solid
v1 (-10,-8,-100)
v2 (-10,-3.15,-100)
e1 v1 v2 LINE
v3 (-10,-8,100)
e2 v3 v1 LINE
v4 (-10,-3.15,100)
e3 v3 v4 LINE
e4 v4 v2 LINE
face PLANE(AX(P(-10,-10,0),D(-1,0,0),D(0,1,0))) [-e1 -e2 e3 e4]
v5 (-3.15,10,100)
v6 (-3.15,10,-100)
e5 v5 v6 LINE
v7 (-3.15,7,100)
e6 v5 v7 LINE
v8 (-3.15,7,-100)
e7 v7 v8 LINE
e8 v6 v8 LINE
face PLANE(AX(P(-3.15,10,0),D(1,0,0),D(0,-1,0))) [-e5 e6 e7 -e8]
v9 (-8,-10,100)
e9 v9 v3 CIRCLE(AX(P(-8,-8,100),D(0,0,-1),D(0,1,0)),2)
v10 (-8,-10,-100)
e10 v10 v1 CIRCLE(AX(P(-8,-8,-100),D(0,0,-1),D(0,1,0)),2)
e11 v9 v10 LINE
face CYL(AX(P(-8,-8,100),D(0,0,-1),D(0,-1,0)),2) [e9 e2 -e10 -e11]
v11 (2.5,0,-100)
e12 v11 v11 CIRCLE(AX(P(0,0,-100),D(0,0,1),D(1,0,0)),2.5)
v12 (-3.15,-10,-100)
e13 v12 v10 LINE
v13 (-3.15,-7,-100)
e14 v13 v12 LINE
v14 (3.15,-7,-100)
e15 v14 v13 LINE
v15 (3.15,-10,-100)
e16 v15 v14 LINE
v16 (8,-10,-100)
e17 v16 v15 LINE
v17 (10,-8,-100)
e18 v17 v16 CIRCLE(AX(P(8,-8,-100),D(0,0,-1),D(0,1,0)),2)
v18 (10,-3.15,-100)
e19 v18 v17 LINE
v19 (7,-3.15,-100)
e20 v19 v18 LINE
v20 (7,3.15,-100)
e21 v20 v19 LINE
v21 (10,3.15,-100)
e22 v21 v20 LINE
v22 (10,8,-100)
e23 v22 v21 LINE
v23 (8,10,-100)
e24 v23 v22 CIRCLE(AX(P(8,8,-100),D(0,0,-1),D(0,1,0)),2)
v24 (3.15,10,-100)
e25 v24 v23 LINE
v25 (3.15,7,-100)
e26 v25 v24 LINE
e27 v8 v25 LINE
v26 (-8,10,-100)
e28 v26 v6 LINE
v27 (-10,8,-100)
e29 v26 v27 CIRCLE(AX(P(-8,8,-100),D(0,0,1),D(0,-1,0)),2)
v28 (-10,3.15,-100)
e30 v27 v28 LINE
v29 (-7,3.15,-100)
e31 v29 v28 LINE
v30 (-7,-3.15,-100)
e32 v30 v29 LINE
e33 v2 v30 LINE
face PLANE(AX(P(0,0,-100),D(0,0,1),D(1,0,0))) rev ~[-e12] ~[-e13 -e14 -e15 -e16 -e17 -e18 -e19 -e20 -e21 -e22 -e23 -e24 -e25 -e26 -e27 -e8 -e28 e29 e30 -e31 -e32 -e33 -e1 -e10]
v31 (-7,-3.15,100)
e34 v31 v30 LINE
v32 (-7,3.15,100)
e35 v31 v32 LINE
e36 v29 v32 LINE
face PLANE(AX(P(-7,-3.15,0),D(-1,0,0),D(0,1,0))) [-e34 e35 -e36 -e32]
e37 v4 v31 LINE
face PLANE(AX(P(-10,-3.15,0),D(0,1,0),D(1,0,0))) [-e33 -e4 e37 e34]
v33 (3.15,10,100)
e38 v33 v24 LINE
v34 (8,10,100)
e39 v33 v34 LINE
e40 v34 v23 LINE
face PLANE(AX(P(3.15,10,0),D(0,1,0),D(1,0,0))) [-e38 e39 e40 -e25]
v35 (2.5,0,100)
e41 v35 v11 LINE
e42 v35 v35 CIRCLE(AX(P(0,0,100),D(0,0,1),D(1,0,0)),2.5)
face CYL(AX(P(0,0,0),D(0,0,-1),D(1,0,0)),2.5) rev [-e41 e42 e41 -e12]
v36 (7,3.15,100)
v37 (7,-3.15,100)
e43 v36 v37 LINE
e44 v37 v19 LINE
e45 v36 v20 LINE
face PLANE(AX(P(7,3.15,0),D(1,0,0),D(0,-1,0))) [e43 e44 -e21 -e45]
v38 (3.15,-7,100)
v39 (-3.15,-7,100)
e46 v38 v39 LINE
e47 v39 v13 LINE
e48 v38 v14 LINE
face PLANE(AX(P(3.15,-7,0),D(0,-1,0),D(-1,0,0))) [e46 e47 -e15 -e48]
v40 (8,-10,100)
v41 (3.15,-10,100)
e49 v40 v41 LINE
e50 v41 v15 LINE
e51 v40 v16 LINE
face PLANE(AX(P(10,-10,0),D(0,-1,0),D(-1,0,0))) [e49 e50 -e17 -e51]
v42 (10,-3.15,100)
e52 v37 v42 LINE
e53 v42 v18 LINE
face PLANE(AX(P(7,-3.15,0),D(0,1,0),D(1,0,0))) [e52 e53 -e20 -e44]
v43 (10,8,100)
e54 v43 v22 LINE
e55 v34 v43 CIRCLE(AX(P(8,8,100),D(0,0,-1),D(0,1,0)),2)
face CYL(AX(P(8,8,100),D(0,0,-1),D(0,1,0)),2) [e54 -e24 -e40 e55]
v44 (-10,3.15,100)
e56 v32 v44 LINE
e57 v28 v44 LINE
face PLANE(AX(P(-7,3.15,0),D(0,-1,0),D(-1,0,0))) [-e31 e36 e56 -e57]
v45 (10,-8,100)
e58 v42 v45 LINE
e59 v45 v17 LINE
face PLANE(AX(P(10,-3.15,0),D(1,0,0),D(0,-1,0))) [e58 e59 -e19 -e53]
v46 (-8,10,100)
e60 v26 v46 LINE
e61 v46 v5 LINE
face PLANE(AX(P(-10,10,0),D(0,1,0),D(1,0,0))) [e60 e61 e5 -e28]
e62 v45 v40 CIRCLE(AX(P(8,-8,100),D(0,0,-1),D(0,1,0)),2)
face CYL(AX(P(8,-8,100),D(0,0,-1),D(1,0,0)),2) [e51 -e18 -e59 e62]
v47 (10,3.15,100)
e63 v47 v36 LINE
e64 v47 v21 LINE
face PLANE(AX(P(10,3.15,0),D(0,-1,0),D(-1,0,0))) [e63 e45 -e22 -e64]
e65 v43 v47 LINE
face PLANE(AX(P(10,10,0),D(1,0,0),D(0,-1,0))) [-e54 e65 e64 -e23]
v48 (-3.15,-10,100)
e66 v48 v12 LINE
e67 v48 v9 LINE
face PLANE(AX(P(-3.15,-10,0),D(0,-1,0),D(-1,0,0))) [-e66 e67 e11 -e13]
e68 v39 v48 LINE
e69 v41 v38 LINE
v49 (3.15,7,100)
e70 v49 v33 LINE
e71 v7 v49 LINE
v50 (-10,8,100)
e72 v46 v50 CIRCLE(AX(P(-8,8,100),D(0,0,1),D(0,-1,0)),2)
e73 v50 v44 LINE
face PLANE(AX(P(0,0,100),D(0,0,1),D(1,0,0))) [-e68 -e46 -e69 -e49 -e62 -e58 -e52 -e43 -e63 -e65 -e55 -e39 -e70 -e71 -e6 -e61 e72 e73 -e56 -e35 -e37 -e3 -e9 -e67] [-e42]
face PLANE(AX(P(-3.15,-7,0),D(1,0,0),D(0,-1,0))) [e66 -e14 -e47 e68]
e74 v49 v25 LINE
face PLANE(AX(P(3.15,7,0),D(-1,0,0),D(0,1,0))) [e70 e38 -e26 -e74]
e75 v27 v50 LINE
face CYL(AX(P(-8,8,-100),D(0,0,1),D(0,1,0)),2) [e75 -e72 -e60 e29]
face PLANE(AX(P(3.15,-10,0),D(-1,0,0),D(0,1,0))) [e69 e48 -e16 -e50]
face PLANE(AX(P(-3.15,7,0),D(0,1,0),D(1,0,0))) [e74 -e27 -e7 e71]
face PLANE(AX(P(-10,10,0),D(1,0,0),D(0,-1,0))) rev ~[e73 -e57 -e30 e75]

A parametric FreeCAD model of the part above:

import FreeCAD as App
import Part
import Sketcher
Q = App.Units.Quantity


def edges_at(feature, points):
    """Names of the edges that pass closest to the given points."""
    edges = feature.Shape.Edges
    near = lambda p: min(range(len(edges)), key=lambda i: edges[i].distToShape(Part.Vertex(*p))[0])
    return sorted({f"Edge{near(p) + 1}" for p in points})


def add_polygon(sketch, points):
    """Adds a closed chain of lines whose ends are joined by coincident constraints."""
    first, n = sketch.GeometryCount, len(points)
    for a, b in zip(points, points[1:] + points[:1]):
        sketch.addGeometry(Part.LineSegment(App.Vector(*a, 0), App.Vector(*b, 0)), False)
    for i in range(n):
        sketch.addConstraint(Sketcher.Constraint("Coincident", first + i, 2, first + (i + 1) % n, 1))

doc = App.newDocument("Part")
body = doc.addObject("PartDesign::Body", "Body")

sketch1 = body.newObject("Sketcher::SketchObject", "Sketch")
sketch1.AttachmentSupport = (doc.getObject("XY_Plane"), [""])
sketch1.MapMode = "FlatFace"
add_polygon(sketch1, [(-3.1, 10), (-10, 10), (-10, 3.1), (-7, 3.1), (-7, -3.1), (-10, -3.1), (-10, -10), (-3.1, -10), (-3.1, -7), (3.1, -7), (3.1, -10), (10, -10), (10, -3.1), (7, -3.1), (7, 3.1), (10, 3.1), (10, 10), (3.1, 10), (3.1, 7), (-3.1, 7)])
sketch1.addGeometry(Part.Circle(App.Vector(0, 0, 0), App.Vector(0, 0, 1), 2.5), False)
sketch1.addConstraint([
    Sketcher.Constraint("Horizontal", 0),
    Sketcher.Constraint("Vertical", 1),
    Sketcher.Constraint("Horizontal", 2),
    Sketcher.Constraint("Vertical", 3),
    Sketcher.Constraint("Horizontal", 4),
    Sketcher.Constraint("Vertical", 5),
    Sketcher.Constraint("Horizontal", 6),
    Sketcher.Constraint("Vertical", 7),
    Sketcher.Constraint("Horizontal", 8),
    Sketcher.Constraint("Vertical", 9),
    Sketcher.Constraint("Horizontal", 10),
    Sketcher.Constraint("Vertical", 11),
    Sketcher.Constraint("Horizontal", 12),
    Sketcher.Constraint("Vertical", 13),
    Sketcher.Constraint("Horizontal", 14),
    Sketcher.Constraint("Vertical", 15),
    Sketcher.Constraint("Horizontal", 16),
    Sketcher.Constraint("Vertical", 17),
    Sketcher.Constraint("Horizontal", 18),
    Sketcher.Constraint("Vertical", 19),
    Sketcher.Constraint("Coincident", 20, 3, -1, 1),
    Sketcher.Constraint("Symmetric", 0, 2, 10, 2, -1, 1),
    Sketcher.Constraint("Symmetric", 2, 2, 12, 2, -1, 1),
    Sketcher.Constraint("Symmetric", 4, 2, 14, 2, -1, 1),
    Sketcher.Constraint("Symmetric", 6, 2, 16, 2, -1, 1),
    Sketcher.Constraint("Symmetric", 8, 2, 18, 2, -1, 1),
    Sketcher.Constraint("Symmetric", 6, 2, 9, 2, -2),
    Sketcher.Constraint("Symmetric", 4, 2, 11, 2, -2),
    Sketcher.Constraint("Equal", 16, 1),
    Sketcher.Constraint("Equal", 18, 3),
    Sketcher.Constraint("Equal", 14, 7),
    Sketcher.Constraint("Diameter", 20, Q("5 mm")),
    Sketcher.Constraint("DistanceX", 2, 1, 2, 2, Q("3 mm")),
    Sketcher.Constraint("DistanceX", 8, 1, 8, 2, Q("6.3 mm")),
    Sketcher.Constraint("DistanceX", 0, 2, -1, 1, Q("10 mm")),
])
pad1 = body.newObject("PartDesign::Pad", "Pad")
pad1.Profile = sketch1
pad1.Length = 200
pad1.Midplane = True
doc.recompute()

fillet = body.newObject("PartDesign::Fillet", "Fillet")
fillet.Base = (pad1, edges_at(pad1, [
    (-10, 10, 0),
    (10, 10, 0),
    (10, -10, 0),
    (-10, -10, 0),
]))
fillet.Radius = 2

doc.recompute()
